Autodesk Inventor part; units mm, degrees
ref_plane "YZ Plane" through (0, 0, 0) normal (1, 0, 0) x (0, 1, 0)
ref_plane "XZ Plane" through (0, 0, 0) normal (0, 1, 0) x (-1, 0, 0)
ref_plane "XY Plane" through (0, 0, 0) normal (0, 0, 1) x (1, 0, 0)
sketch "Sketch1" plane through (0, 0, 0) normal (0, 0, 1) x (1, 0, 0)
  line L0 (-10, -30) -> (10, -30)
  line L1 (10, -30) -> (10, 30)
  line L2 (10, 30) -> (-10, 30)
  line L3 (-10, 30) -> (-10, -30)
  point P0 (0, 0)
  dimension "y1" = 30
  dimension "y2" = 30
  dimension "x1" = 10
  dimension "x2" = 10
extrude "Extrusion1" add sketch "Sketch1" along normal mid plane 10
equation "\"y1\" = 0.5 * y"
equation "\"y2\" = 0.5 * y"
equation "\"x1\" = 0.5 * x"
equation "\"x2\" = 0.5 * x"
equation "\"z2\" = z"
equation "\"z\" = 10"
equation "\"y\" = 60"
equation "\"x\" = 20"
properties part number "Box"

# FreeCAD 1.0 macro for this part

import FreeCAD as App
import Part
import Sketcher

V = App.Vector


def add_polygon(sketch, points):
    """Adds a closed chain of lines whose ends are joined by coincident constraints."""
    first, n = sketch.GeometryCount, len(points)
    for a, b in zip(points, points[1:] + points[:1]):
        sketch.addGeometry(Part.LineSegment(App.Vector(*a, 0), App.Vector(*b, 0)), False)
    for i in range(n):
        sketch.addConstraint(Sketcher.Constraint("Coincident", first + i, 2, first + (i + 1) % n, 1))

doc = App.newDocument("Part")
params = doc.addObject("Spreadsheet::Sheet", "Params")
for row, (alias, value) in enumerate([
    ("pad1_length", "10 mm"),
], start=1):
    params.set(f"A{row}", alias)
    params.set(f"B{row}", "=" + value)
    params.setAlias(f"B{row}", alias)

body = doc.addObject("PartDesign::Body", "Body")

sketch1 = doc.addObject("Sketcher::SketchObject", "Sketch")
body.addObject(sketch1)
sketch1.AttachmentSupport = (doc.XY_Plane, [""])
sketch1.MapMode = "FlatFace"
add_polygon(sketch1, [(-10, 30), (-10, -30), (10, -30), (10, 30)])
sketch1.addConstraint(Sketcher.Constraint("Vertical", 0))
sketch1.addConstraint(Sketcher.Constraint("Horizontal", 1))
sketch1.addConstraint(Sketcher.Constraint("Vertical", 2))
sketch1.addConstraint(Sketcher.Constraint("Horizontal", 3))
sketch1.addConstraint(Sketcher.Constraint("Symmetric", 0, 2, 2, 2, -1, 1))
sketch1.addConstraint(Sketcher.Constraint("DistanceX", 0, 2, -1, 1, 10.0))
sketch1.addConstraint(Sketcher.Constraint("DistanceY", 0, 2, -1, 1, 30.0))
pad1 = doc.addObject("PartDesign::Pad", "Pad")
body.addObject(pad1)
pad1.Profile = sketch1
pad1.setExpression("Length", "Params.pad1_length")
pad1.Midplane = True

doc.recompute()
